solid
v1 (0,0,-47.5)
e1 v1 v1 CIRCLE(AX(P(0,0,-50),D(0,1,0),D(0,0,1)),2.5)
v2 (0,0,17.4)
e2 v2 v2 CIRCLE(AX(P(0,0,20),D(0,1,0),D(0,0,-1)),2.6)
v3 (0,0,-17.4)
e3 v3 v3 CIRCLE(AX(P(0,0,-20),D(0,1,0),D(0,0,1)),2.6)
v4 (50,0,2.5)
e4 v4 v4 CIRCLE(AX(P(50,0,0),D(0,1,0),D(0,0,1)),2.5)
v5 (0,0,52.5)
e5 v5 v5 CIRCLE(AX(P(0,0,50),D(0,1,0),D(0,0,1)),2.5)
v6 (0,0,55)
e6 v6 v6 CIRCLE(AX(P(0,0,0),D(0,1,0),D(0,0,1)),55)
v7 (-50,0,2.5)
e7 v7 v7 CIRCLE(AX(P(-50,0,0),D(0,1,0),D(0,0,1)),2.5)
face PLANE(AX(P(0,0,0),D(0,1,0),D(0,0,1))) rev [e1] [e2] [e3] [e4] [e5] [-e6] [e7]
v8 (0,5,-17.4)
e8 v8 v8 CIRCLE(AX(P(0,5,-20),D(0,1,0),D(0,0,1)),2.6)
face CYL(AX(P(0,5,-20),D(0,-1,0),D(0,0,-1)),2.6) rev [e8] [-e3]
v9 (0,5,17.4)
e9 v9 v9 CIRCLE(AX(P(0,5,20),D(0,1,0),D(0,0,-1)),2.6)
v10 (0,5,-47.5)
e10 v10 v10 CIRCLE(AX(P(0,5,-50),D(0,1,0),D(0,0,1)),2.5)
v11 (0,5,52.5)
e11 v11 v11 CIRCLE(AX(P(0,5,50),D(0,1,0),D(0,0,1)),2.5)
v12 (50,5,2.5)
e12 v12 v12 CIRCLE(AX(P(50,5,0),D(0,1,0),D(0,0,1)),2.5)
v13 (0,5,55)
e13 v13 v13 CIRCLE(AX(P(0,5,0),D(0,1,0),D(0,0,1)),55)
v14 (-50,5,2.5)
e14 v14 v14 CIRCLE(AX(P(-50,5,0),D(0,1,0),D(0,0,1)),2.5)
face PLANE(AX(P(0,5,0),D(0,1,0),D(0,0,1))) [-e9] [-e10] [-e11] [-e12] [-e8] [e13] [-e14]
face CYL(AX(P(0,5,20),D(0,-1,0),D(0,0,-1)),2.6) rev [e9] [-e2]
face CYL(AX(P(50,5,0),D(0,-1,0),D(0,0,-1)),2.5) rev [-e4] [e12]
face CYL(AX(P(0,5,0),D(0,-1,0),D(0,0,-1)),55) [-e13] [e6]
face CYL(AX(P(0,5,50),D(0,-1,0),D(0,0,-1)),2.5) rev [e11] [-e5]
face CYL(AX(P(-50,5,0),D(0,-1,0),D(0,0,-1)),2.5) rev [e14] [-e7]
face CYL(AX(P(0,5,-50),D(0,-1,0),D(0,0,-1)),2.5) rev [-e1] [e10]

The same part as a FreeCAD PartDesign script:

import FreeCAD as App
import Part
import Sketcher

V = App.Vector
Q = App.Units.Quantity

doc = App.newDocument("Part")
body = doc.addObject("PartDesign::Body", "Body")

# Sketch on XZ plane
sketch1 = body.newObject("Sketcher::SketchObject", "Sketch")
sketch1.AttachmentSupport = (doc.getObject("XZ_Plane"), [""])
sketch1.MapMode = "FlatFace"
sketch1.addGeometry([
    Part.Circle(V(0, 0, 0), V(0, 0, 1), 55),  # 0
    Part.Circle(V(-50, 0, 0), V(0, 0, 1), 2.5),  # 1
    Part.Circle(V(0, -50, 0), V(0, 0, 1), 2.5),  # 2
    Part.Circle(V(0, -20, 0), V(0, 0, 1), 2.6),  # 3
    Part.Circle(V(0, 20, 0), V(0, 0, 1), 2.6),  # 4
    Part.Circle(V(0, 50, 0), V(0, 0, 1), 2.5),  # 5
    Part.Circle(V(50, 0, 0), V(0, 0, 1), 2.5),  # 6
], False)
sketch1.addConstraint([
    Sketcher.Constraint("Coincident", 0, 3, -1, 1),
    Sketcher.Constraint("Equal", 1, 2),
    Sketcher.Constraint("Equal", 3, 4),
    Sketcher.Constraint("Equal", 2, 5),
    Sketcher.Constraint("Equal", 5, 6),
    Sketcher.Constraint("Symmetric", 3, 3, 4, 3, -1, 1),
    Sketcher.Constraint("Symmetric", 2, 3, 5, 3, -1, 1),
    Sketcher.Constraint("Symmetric", 1, 3, 6, 3, -1, 1),
    Sketcher.Constraint("PointOnObject", 1, 3, -1),
    Sketcher.Constraint("PointOnObject", 2, 3, -2),
    Sketcher.Constraint("PointOnObject", 3, 3, -2),
    Sketcher.Constraint("Diameter", 0, Q("110 mm")),
    Sketcher.Constraint("Diameter", 1, Q("5 mm")),
    Sketcher.Constraint("Diameter", 3, Q("5.2 mm")),
    Sketcher.Constraint("DistanceX", 1, 3, -1, 1, Q("50 mm")),
    Sketcher.Constraint("DistanceY", 2, 3, -1, 1, Q("50 mm")),
    Sketcher.Constraint("DistanceY", 3, 3, -1, 1, Q("20 mm")),
])
pad1 = body.newObject("PartDesign::Pad", "Pad")
pad1.Profile = sketch1
pad1.Length = 5
pad1.Reversed = True

doc.recompute()
